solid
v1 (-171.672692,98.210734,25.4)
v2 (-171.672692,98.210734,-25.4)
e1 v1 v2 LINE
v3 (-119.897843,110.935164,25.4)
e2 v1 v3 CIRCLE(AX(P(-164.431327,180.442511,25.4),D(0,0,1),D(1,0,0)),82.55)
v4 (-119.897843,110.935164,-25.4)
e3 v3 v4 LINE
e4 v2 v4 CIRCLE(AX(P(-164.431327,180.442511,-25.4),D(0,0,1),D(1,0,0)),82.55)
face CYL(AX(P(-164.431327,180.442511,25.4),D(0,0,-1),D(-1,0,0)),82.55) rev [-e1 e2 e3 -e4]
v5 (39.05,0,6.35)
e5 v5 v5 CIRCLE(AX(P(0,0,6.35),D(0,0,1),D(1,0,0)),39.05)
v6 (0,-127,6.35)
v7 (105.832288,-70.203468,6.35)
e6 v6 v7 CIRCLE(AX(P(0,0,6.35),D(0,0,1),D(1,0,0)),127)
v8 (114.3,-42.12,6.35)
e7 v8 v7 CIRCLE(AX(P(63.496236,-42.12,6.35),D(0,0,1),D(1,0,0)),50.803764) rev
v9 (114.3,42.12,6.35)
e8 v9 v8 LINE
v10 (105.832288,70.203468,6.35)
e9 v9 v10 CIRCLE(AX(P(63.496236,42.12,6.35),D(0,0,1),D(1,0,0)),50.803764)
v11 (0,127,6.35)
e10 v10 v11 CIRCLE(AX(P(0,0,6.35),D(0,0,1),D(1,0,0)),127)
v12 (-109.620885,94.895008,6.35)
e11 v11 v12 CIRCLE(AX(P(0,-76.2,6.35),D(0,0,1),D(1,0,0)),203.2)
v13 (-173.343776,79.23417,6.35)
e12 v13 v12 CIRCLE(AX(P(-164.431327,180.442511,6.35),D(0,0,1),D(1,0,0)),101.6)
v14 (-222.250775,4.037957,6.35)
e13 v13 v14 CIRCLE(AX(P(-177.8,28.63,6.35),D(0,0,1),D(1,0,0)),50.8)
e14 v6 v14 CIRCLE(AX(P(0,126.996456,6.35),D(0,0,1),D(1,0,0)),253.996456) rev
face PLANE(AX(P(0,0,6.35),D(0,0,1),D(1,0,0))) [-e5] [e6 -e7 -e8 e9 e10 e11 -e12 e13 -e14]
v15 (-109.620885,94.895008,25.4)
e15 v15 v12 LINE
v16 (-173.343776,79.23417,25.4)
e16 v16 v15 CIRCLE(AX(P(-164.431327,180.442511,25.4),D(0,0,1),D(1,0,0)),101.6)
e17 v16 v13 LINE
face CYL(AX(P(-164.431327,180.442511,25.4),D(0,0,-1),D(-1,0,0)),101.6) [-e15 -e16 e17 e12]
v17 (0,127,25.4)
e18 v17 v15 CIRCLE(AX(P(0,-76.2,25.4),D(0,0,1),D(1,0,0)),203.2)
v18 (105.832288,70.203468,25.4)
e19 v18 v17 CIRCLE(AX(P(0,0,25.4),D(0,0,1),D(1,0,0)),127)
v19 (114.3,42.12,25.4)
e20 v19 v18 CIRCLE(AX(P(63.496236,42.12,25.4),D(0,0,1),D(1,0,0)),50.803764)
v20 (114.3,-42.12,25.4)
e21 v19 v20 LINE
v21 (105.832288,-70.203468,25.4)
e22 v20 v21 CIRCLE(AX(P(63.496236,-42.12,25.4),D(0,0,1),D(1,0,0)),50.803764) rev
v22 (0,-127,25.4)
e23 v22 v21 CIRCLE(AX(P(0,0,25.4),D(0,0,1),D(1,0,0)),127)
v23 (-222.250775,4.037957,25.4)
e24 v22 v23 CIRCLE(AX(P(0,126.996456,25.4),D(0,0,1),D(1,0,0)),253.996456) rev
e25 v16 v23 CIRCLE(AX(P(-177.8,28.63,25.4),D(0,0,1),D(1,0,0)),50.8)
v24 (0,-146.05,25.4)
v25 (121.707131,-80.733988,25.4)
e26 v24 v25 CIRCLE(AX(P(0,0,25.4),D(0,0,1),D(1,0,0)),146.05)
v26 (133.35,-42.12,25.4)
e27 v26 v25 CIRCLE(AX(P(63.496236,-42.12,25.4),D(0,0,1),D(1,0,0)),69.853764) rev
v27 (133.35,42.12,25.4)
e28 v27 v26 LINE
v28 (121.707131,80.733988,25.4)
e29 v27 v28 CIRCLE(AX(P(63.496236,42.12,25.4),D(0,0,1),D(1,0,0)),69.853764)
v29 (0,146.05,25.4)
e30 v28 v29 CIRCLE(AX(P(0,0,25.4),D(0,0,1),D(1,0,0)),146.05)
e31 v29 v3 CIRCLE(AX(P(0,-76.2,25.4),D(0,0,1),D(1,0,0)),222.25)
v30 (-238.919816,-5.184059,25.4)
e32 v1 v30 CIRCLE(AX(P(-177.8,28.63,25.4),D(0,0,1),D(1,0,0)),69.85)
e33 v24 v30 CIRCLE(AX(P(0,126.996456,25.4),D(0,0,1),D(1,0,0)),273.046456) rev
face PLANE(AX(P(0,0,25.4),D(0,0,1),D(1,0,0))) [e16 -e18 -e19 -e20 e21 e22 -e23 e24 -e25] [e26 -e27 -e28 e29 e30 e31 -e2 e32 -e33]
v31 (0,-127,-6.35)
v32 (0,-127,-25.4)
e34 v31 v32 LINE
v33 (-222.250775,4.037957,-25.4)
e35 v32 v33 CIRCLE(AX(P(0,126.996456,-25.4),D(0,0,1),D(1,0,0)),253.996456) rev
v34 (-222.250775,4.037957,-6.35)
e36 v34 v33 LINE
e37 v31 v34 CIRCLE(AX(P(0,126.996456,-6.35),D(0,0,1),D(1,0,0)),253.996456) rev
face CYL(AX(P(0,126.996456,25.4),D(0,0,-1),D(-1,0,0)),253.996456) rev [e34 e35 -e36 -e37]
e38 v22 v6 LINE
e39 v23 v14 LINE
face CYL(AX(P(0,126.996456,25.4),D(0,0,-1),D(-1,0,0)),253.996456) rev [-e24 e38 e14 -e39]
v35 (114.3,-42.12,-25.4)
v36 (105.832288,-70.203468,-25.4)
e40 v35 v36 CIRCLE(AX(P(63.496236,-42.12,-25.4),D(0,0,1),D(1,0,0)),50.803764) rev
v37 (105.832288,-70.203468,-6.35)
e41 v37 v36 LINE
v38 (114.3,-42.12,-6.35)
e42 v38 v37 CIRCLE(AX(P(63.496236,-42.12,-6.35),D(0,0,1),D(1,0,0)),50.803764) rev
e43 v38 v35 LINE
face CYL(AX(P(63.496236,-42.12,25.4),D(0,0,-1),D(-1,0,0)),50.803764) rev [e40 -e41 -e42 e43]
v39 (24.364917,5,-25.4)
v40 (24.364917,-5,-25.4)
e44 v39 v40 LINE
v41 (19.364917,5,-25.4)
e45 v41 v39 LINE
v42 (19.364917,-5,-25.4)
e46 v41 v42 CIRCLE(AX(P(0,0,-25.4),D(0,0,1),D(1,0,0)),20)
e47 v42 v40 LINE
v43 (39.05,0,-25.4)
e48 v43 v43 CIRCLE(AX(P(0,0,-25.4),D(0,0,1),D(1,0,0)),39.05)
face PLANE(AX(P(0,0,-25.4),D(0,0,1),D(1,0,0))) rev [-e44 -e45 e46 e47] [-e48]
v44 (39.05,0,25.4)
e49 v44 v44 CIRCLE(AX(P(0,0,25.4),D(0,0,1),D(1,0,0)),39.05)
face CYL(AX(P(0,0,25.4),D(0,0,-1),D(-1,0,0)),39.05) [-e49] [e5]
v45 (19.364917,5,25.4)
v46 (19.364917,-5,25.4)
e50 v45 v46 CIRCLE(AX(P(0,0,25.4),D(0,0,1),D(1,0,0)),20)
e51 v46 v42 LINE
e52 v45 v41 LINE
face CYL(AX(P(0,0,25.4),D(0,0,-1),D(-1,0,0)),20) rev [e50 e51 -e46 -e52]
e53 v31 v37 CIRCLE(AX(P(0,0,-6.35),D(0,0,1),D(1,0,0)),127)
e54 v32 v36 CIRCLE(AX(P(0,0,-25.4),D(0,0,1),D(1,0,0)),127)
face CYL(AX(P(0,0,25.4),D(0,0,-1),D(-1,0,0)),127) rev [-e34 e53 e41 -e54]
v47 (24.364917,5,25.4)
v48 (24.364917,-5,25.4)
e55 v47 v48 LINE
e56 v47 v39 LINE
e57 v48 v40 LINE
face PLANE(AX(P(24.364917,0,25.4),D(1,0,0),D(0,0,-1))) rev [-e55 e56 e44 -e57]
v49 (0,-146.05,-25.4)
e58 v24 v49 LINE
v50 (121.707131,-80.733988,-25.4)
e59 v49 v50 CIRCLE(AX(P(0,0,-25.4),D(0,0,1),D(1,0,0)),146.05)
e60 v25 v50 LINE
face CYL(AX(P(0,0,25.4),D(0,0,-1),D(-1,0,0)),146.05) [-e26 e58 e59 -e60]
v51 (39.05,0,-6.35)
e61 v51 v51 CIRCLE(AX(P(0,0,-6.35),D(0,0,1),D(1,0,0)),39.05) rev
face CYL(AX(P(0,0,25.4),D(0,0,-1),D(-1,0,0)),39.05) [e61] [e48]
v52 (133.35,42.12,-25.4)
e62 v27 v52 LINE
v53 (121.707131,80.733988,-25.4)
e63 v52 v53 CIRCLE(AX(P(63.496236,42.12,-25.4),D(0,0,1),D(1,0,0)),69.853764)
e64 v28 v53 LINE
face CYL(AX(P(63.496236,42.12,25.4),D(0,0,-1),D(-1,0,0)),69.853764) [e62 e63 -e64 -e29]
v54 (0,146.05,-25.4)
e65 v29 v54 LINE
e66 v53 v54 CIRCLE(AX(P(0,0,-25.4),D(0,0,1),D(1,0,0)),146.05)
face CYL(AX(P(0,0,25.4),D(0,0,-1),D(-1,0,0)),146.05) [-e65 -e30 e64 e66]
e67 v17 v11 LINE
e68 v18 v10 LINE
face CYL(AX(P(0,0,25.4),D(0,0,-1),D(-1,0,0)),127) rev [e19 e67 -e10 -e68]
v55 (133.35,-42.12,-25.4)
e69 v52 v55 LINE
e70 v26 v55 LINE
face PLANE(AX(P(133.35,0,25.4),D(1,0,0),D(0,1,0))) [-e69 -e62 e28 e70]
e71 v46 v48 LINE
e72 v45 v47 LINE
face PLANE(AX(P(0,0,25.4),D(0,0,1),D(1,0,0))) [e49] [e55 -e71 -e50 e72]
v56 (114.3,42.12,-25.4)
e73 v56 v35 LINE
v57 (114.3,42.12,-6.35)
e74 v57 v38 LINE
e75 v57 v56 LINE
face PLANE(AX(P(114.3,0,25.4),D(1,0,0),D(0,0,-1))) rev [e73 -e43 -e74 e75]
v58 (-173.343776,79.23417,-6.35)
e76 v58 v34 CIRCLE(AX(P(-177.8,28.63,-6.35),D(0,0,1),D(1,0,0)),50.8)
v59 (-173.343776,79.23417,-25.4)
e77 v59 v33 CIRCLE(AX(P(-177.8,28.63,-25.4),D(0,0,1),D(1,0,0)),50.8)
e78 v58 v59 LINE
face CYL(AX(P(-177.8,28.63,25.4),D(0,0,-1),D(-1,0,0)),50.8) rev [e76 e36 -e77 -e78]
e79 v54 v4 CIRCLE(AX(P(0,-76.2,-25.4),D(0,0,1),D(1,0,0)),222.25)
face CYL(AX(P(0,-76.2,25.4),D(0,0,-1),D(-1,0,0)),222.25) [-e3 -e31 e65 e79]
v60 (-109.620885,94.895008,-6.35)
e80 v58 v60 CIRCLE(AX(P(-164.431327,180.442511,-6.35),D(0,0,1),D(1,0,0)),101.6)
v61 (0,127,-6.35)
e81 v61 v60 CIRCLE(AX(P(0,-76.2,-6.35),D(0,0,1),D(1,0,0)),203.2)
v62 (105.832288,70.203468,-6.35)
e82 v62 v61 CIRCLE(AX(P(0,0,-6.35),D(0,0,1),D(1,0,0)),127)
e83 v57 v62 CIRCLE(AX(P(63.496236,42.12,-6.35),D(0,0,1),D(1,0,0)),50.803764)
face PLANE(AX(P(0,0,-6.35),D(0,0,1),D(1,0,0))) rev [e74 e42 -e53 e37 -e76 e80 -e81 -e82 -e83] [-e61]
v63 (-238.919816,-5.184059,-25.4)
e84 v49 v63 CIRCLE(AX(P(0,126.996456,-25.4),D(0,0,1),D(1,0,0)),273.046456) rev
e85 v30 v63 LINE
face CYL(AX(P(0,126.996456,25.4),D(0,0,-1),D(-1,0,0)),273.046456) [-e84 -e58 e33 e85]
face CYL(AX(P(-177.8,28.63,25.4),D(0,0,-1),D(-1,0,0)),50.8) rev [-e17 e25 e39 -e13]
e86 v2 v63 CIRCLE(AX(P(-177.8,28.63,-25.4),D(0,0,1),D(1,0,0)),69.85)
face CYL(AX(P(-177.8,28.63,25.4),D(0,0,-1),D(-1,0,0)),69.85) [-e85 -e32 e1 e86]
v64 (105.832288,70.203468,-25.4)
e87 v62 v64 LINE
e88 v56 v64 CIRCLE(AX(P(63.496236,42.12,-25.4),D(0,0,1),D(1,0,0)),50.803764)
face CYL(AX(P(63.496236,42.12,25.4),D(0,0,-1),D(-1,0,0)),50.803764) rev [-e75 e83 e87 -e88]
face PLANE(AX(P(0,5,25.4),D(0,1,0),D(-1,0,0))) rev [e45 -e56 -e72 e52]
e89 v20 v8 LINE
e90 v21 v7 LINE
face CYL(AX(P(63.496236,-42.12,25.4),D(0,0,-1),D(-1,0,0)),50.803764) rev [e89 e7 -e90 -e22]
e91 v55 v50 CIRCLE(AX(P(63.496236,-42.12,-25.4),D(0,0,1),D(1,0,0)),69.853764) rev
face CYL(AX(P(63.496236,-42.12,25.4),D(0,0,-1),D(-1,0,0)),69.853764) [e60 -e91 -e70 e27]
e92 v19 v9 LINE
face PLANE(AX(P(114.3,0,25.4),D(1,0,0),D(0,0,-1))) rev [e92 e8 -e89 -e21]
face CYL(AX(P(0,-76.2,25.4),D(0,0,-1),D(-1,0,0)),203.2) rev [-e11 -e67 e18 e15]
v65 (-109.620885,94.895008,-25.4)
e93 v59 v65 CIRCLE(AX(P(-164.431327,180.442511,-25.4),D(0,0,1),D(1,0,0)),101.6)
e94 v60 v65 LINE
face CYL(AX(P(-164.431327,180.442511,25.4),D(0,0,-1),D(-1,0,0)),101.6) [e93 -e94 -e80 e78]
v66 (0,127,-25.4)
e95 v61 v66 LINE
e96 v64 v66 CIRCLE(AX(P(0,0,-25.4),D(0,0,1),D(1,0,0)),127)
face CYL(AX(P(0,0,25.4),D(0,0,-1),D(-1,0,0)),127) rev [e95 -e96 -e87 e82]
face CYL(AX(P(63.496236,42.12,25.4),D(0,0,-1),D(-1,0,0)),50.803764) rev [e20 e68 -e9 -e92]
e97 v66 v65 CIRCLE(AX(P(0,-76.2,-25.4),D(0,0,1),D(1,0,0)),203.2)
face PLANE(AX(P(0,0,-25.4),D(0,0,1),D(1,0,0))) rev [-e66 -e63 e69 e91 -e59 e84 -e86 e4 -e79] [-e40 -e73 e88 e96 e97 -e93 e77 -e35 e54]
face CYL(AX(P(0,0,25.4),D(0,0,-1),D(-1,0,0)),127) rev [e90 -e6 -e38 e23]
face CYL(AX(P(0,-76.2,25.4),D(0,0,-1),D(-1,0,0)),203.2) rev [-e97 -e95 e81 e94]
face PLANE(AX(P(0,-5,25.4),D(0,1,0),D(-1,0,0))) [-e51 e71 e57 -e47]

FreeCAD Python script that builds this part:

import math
import FreeCAD as App
import Part
import Sketcher

V = App.Vector
Q = App.Units.Quantity

doc = App.newDocument("Part")
body = doc.addObject("PartDesign::Body", "Body")

sketch1 = doc.addObject("Sketcher::SketchObject", "Sketch")
body.addObject(sketch1)
sketch1.AttachmentSupport = (doc.XY_Plane, [""])
sketch1.MapMode = "FlatFace"
sketch1.addGeometry([
    Part.ArcOfCircle(Part.Circle(V(63, 42, 0), V(0, 0, 1), 70), math.radians(0), math.radians(34)),
    Part.ArcOfCircle(Part.Circle(V(0, 0, 0), V(0, 0, 1), 146), math.radians(34), math.radians(90)),
    Part.ArcOfCircle(Part.Circle(V(0, -76, 0), V(0, 0, 1), 222), math.radians(90), math.radians(123)),
    Part.ArcOfCircle(Part.Circle(V(-164, 180, 0), V(0, 0, 1), 83), math.radians(-95), math.radians(-57)),
    Part.ArcOfCircle(Part.Circle(V(-178, 29, 0), V(0, 0, 1), 70), math.radians(85), math.radians(209)),
    Part.ArcOfCircle(Part.Circle(V(0, 127, 0), V(0, 0, 1), 273), math.radians(-151), math.radians(-90)),
    Part.ArcOfCircle(Part.Circle(V(0, 0, 0), V(0, 0, 1), 146), math.radians(-90), math.radians(-34)),
    Part.ArcOfCircle(Part.Circle(V(63, -42, 0), V(0, 0, 1), 70), math.radians(-34), math.radians(0)),
    Part.LineSegment(V(133, -42, 0), V(133, 42, 0)),
    Part.ArcOfCircle(Part.Circle(V(0, 0, 0), V(0, 0, 1), 127), math.radians(-90), math.radians(-34)),
    Part.ArcOfCircle(Part.Circle(V(0, 127, 0), V(0, 0, 1), 254), math.radians(-151), math.radians(-90)),
    Part.ArcOfCircle(Part.Circle(V(-178, 29, 0), V(0, 0, 1), 51), math.radians(85), math.radians(209)),
    Part.ArcOfCircle(Part.Circle(V(-164, 180, 0), V(0, 0, 1), 102), math.radians(-95), math.radians(-57)),
    Part.ArcOfCircle(Part.Circle(V(0, -76, 0), V(0, 0, 1), 203), math.radians(90), math.radians(123)),
    Part.ArcOfCircle(Part.Circle(V(0, 0, 0), V(0, 0, 1), 127), math.radians(34), math.radians(90)),
    Part.ArcOfCircle(Part.Circle(V(63, 42, 0), V(0, 0, 1), 51), math.radians(0), math.radians(34)),
    Part.LineSegment(V(114, 42, 0), V(114, -42, 0)),
    Part.ArcOfCircle(Part.Circle(V(63, -42, 0), V(0, 0, 1), 51), math.radians(-34), math.radians(0)),
], False)
sketch1.addConstraint([
    Sketcher.Constraint("Tangent", 0, 2, 1, 1),
    Sketcher.Constraint("Tangent", 1, 2, 2, 1),
    Sketcher.Constraint("Tangent", 2, 2, 3, 2),
    Sketcher.Constraint("Tangent", 3, 1, 4, 1),
    Sketcher.Constraint("Tangent", 4, 2, 5, 1),
    Sketcher.Constraint("Tangent", 5, 2, 6, 1),
    Sketcher.Constraint("Tangent", 6, 2, 7, 1),
    Sketcher.Constraint("Tangent", 7, 2, 8, 1),
    Sketcher.Constraint("Tangent", 8, 2, 0, 1),
    Sketcher.Constraint("Tangent", 9, 1, 10, 2),
    Sketcher.Constraint("Tangent", 10, 1, 11, 2),
    Sketcher.Constraint("Tangent", 11, 1, 12, 1),
    Sketcher.Constraint("Tangent", 12, 2, 13, 2),
    Sketcher.Constraint("Tangent", 13, 1, 14, 2),
    Sketcher.Constraint("Tangent", 14, 1, 15, 2),
    Sketcher.Constraint("Tangent", 15, 1, 16, 1),
    Sketcher.Constraint("Tangent", 16, 2, 17, 2),
    Sketcher.Constraint("Tangent", 17, 1, 9, 2),
    Sketcher.Constraint("Vertical", 8),
    Sketcher.Constraint("Vertical", 16),
    Sketcher.Constraint("Coincident", 1, 3, -1, 1),
    Sketcher.Constraint("Coincident", 6, 3, -1, 1),
    Sketcher.Constraint("Coincident", 9, 3, -1, 1),
    Sketcher.Constraint("Coincident", 14, 3, -1, 1),
    Sketcher.Constraint("Coincident", 10, 3, 5, 3),
    Sketcher.Constraint("Coincident", 11, 3, 4, 3),
    Sketcher.Constraint("Coincident", 12, 3, 3, 3),
    Sketcher.Constraint("Coincident", 13, 3, 2, 3),
    Sketcher.Constraint("Coincident", 15, 3, 0, 3),
    Sketcher.Constraint("Equal", 1, 6),
    Sketcher.Constraint("Equal", 0, 7),
    Sketcher.Constraint("Equal", 15, 17),
    Sketcher.Constraint("PointOnObject", 2, 3, -2),
    Sketcher.Constraint("PointOnObject", 5, 3, -2),
    Sketcher.Constraint("Radius", 9, Q("5 in")),
    Sketcher.Constraint("Radius", 11, Q("2 in")),
    Sketcher.Constraint("Radius", 12, Q("4 in")),
    Sketcher.Constraint("Radius", 13, Q("8 in")),
    Sketcher.Constraint("Radius", 1, Q("5.75 in")),
    Sketcher.Constraint("DistanceX", 4, 3, -1, 1, Q("7 in")),
    Sketcher.Constraint("DistanceX", -1, 1, 15, 1, Q("4.5 in")),
    Sketcher.Constraint("DistanceY", 8, 1, 8, 2, 84.24),
    Sketcher.Constraint("Radius", 5, 273.046456),
])
pad1 = doc.addObject("PartDesign::Pad", "Pad")
body.addObject(pad1)
pad1.Profile = sketch1
pad1.Length = Q("2 in")
pad1.Midplane = True
body2 = doc.addObject("PartDesign::Body", "Body001")

sketch2 = doc.addObject("Sketcher::SketchObject", "Sketch001")
body2.addObject(sketch2)
sketch2.AttachmentSupport = (doc.getObject("XY_Plane001"), [""])
sketch2.MapMode = "FlatFace"
sketch2.addGeometry([
    Part.Circle(V(0, 0, 0), V(0, 0, 1), 39),
    Part.ArcOfCircle(Part.Circle(V(0, 0, 0), V(0, 0, 1), 20), math.radians(14), math.radians(346)),
    Part.LineSegment(V(19, 5, 0), V(24, 5, 0)),
    Part.LineSegment(V(24, 5, 0), V(24, -5, 0)),
    Part.LineSegment(V(24, -5, 0), V(19, -5, 0)),
], False)
sketch2.addConstraint([
    Sketcher.Constraint("Coincident", 1, 1, 2, 1),
    Sketcher.Constraint("Coincident", 2, 2, 3, 1),
    Sketcher.Constraint("Coincident", 3, 2, 4, 1),
    Sketcher.Constraint("Coincident", 4, 2, 1, 2),
    Sketcher.Constraint("Horizontal", 2),
    Sketcher.Constraint("Vertical", 3),
    Sketcher.Constraint("Horizontal", 4),
    Sketcher.Constraint("Coincident", 0, 3, -1, 1),
    Sketcher.Constraint("Coincident", 1, 3, -1, 1),
    Sketcher.Constraint("Vertical", 1, 1, 4, 2),
    Sketcher.Constraint("Diameter", 0, 78.1),
    Sketcher.Constraint("Radius", 1, 20.0),
    Sketcher.Constraint("DistanceX", 2, 1, 2, 2, 5.0),
    Sketcher.Constraint("DistanceY", 3, 2, 3, 1, 10.0),
])
pad2 = doc.addObject("PartDesign::Pad", "Pad001")
body2.addObject(pad2)
pad2.Profile = sketch2
pad2.Length = Q("2 in")
pad2.Midplane = True
body.AllowCompound = True
doc.recompute()

boolean = doc.addObject("PartDesign::Boolean", "Boolean")
body.addObject(boolean)
boolean.Type = "Fuse"
boolean.addObjects([body2])

sketch3 = doc.addObject("Sketcher::SketchObject", "Sketch002")
body.addObject(sketch3)
sketch3.AttachmentSupport = (doc.XY_Plane, [""])
sketch3.MapMode = "FlatFace"
sketch3.addGeometry([
    Part.ArcOfCircle(Part.Circle(V(0, 127, 0), V(0, 0, 1), 254), math.radians(-151), math.radians(-90)),
    Part.ArcOfCircle(Part.Circle(V(0, 0, 0), V(0, 0, 1), 127), math.radians(-90), math.radians(-34)),
    Part.ArcOfCircle(Part.Circle(V(63, -42, 0), V(0, 0, 1), 51), math.radians(-34), math.radians(0)),
    Part.LineSegment(V(114, -42, 0), V(114, 42, 0)),
    Part.ArcOfCircle(Part.Circle(V(63, 42, 0), V(0, 0, 1), 51), math.radians(0), math.radians(34)),
    Part.ArcOfCircle(Part.Circle(V(0, 0, 0), V(0, 0, 1), 127), math.radians(34), math.radians(90)),
    Part.ArcOfCircle(Part.Circle(V(0, -76, 0), V(0, 0, 1), 203), math.radians(90), math.radians(123)),
    Part.ArcOfCircle(Part.Circle(V(-164, 180, 0), V(0, 0, 1), 102), math.radians(-95), math.radians(-57)),
    Part.ArcOfCircle(Part.Circle(V(-178, 29, 0), V(0, 0, 1), 51), math.radians(85), math.radians(209)),
    Part.Circle(V(0, 0, 0), V(0, 0, 1), 39),
], False)
sketch3.addConstraint([
    Sketcher.Constraint("Tangent", 0, 2, 1, 1),
    Sketcher.Constraint("Tangent", 1, 2, 2, 1),
    Sketcher.Constraint("Tangent", 2, 2, 3, 1),
    Sketcher.Constraint("Tangent", 3, 2, 4, 1),
    Sketcher.Constraint("Tangent", 4, 2, 5, 1),
    Sketcher.Constraint("Tangent", 5, 2, 6, 1),
    Sketcher.Constraint("Tangent", 6, 2, 7, 2),
    Sketcher.Constraint("Tangent", 7, 1, 8, 1),
    Sketcher.Constraint("Tangent", 8, 2, 0, 1),
    Sketcher.Constraint("Vertical", 3),
    Sketcher.Constraint("Coincident", 1, 3, -1, 1),
    Sketcher.Constraint("Coincident", 5, 3, -1, 1),
    Sketcher.Constraint("Coincident", 9, 3, -1, 1),
    Sketcher.Constraint("Equal", 2, 4),
    Sketcher.Constraint("Equal", 1, 5),
    Sketcher.Constraint("PointOnObject", 0, 3, -2),
    Sketcher.Constraint("PointOnObject", 6, 3, -2),
    Sketcher.Constraint("Radius", 1, Q("5 in")),
    Sketcher.Constraint("Radius", 6, Q("8 in")),
    Sketcher.Constraint("Radius", 7, Q("4 in")),
    Sketcher.Constraint("Radius", 8, Q("2 in")),
    Sketcher.Constraint("DistanceX", 8, 3, -1, 1, Q("7 in")),
    Sketcher.Constraint("DistanceX", -1, 1, 2, 2, Q("4.5 in")),
    Sketcher.Constraint("Diameter", 9, 78.1),
    Sketcher.Constraint("DistanceY", 3, 1, 3, 2, 84.24),
    Sketcher.Constraint("Radius", 0, 253.996456),
])
pad3 = doc.addObject("PartDesign::Pad", "Pad002")
body.addObject(pad3)
pad3.Profile = sketch3
pad3.Length = Q("0.5 in")
pad3.Midplane = True

doc.recompute()
